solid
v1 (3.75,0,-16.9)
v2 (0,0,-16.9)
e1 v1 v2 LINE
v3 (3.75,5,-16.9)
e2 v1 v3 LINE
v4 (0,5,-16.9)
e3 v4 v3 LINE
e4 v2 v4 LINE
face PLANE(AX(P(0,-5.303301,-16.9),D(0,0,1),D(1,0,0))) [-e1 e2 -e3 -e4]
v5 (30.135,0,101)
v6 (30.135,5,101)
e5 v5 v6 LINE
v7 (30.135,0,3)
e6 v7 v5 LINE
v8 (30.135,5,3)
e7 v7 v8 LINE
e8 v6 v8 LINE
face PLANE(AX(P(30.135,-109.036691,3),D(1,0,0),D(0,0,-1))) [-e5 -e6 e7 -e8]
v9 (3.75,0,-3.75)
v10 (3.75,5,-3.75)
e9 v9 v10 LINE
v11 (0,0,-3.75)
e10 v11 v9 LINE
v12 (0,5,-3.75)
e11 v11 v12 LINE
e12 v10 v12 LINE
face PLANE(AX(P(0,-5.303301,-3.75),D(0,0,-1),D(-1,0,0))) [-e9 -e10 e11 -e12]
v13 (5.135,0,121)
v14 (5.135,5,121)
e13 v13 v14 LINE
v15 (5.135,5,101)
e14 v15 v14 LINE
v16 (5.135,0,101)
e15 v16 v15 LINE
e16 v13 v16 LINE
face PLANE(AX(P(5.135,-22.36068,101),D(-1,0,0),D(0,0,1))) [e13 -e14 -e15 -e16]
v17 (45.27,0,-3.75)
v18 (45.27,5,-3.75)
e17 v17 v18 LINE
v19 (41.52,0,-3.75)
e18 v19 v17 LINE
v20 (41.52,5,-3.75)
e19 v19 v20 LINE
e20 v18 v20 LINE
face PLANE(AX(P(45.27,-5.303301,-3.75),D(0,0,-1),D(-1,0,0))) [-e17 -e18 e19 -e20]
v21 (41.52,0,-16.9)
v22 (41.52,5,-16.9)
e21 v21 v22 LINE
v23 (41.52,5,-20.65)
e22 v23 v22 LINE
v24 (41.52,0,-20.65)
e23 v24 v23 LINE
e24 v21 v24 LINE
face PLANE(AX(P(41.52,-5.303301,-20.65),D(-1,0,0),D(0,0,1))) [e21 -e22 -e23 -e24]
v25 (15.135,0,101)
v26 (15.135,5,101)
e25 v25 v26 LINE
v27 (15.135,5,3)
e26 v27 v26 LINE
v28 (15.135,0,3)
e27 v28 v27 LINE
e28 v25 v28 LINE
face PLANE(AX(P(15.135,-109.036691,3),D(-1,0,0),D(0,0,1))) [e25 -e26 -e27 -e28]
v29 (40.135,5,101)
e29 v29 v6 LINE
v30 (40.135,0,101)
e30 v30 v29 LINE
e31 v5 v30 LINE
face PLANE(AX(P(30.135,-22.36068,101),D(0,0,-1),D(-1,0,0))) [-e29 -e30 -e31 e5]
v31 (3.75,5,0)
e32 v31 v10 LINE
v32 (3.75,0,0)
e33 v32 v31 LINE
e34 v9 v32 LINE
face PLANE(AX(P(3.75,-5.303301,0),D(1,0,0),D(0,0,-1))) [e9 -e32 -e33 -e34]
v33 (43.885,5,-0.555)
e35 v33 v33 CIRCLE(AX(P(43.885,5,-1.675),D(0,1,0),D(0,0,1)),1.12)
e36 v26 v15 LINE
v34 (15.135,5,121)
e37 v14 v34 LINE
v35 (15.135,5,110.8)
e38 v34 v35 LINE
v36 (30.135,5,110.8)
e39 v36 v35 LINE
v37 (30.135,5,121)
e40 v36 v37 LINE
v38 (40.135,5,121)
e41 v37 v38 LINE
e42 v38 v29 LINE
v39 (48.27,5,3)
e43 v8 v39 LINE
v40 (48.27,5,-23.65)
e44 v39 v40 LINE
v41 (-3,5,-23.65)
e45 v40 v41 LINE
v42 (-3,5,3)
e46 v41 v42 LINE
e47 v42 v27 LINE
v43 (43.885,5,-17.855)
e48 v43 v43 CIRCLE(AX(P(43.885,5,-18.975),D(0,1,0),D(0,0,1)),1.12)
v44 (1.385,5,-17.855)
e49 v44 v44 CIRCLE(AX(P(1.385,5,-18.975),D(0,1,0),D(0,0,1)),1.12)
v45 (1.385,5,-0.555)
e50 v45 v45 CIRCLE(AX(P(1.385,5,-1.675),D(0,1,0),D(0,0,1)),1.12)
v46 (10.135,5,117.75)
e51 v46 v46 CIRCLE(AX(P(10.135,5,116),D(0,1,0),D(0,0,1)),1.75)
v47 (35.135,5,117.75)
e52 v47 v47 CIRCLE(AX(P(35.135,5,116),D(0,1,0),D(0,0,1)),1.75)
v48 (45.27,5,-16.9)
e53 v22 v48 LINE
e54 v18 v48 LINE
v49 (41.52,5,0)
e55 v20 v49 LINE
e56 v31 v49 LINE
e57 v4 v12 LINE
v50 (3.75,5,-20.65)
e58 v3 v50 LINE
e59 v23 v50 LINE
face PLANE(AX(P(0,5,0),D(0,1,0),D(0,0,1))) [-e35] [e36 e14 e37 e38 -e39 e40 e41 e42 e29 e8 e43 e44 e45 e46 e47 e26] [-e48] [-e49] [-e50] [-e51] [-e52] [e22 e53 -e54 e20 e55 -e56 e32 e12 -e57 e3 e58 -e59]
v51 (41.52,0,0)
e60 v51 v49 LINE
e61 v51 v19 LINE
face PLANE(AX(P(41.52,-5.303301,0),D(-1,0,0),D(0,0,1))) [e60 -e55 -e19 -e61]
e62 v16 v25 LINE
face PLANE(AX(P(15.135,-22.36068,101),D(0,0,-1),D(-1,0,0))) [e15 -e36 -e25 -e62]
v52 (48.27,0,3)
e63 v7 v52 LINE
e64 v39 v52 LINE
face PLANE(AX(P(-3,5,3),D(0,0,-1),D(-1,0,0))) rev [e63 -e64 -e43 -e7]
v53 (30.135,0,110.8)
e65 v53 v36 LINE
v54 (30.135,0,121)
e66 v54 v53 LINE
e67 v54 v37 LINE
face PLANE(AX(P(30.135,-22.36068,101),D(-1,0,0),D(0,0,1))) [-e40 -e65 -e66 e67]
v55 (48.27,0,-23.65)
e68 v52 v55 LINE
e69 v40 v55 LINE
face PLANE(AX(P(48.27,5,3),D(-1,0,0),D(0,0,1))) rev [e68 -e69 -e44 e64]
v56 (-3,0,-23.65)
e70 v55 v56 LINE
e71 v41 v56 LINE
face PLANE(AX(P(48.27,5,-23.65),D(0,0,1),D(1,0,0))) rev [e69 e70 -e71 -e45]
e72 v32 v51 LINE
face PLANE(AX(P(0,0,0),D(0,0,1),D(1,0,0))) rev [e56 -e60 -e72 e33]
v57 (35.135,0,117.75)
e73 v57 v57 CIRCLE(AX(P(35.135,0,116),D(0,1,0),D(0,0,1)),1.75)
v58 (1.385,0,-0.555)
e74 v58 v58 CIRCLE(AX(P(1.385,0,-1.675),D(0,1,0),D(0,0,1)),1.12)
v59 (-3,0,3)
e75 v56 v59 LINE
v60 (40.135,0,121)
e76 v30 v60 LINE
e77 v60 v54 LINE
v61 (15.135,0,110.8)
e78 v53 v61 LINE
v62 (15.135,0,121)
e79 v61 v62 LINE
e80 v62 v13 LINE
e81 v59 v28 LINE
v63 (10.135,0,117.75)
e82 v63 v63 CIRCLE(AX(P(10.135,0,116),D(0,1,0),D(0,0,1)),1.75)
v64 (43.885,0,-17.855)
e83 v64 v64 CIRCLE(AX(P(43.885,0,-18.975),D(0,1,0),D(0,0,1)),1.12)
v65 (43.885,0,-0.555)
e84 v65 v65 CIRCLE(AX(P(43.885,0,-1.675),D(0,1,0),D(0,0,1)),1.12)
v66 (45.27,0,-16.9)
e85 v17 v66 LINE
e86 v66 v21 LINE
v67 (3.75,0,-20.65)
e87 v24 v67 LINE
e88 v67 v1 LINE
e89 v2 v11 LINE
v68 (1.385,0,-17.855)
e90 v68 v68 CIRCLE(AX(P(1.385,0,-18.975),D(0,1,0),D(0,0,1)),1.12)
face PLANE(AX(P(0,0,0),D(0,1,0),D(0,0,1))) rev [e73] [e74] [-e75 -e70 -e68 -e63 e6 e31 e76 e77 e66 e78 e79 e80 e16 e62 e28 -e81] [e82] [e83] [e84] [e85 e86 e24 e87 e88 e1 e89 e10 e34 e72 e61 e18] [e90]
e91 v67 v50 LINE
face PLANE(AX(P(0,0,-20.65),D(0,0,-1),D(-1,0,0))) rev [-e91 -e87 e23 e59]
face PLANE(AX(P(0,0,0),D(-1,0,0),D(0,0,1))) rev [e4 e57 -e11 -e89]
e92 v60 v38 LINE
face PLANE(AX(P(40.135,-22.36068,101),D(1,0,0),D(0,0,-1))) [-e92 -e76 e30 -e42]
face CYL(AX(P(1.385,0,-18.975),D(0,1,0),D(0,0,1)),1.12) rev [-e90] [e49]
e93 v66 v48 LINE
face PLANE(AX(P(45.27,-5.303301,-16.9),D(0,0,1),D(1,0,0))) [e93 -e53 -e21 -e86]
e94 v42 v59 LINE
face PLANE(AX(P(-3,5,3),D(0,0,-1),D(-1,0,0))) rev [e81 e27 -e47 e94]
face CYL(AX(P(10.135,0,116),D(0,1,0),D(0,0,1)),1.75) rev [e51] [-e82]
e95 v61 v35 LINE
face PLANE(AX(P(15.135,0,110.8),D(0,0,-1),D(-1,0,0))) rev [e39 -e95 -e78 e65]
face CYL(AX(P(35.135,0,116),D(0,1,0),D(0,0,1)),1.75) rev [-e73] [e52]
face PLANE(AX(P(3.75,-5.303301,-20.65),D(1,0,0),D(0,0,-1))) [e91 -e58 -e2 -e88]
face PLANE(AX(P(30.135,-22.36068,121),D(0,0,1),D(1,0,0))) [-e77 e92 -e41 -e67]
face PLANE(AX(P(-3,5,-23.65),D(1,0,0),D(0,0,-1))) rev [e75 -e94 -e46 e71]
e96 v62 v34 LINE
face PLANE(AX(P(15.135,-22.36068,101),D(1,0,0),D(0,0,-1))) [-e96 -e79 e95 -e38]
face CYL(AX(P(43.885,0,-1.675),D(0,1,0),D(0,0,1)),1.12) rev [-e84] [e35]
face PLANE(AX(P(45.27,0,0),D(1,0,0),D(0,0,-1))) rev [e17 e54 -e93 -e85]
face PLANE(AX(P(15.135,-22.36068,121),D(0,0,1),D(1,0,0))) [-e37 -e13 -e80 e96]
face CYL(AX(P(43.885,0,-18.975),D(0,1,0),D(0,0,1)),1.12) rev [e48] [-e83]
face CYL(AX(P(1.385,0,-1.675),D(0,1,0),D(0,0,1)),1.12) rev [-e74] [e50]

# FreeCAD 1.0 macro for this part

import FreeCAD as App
import Part
import Sketcher
Q = App.Units.Quantity


def add_polygon(sketch, points):
    """Adds a closed chain of lines whose ends are joined by coincident constraints."""
    first, n = sketch.GeometryCount, len(points)
    for a, b in zip(points, points[1:] + points[:1]):
        sketch.addGeometry(Part.LineSegment(App.Vector(*a, 0), App.Vector(*b, 0)), False)
    for i in range(n):
        sketch.addConstraint(Sketcher.Constraint("Coincident", first + i, 2, first + (i + 1) % n, 1))

doc = App.newDocument("Part")
body = doc.addObject("PartDesign::Body", "Body")

sketch1 = body.newObject("Sketcher::SketchObject", "Sketch")
sketch1.AttachmentSupport = (doc.getObject("XZ_Plane"), [""])
sketch1.MapMode = "FlatFace"
add_polygon(sketch1, [(-3, -23.65), (-3, 3), (48.27, 3), (48.27, -23.65)])
sketch1.addConstraint([
    Sketcher.Constraint("Vertical", 0),
    Sketcher.Constraint("Horizontal", 1),
    Sketcher.Constraint("Vertical", 2),
    Sketcher.Constraint("Horizontal", 3),
    Sketcher.Constraint("DistanceX", 0, 2, -1, 1, Q("3 mm")),
    Sketcher.Constraint("DistanceY", -1, 1, 0, 2, Q("3 mm")),
    Sketcher.Constraint("DistanceX", 1, 1, 1, 2, Q("51.27 mm")),
    Sketcher.Constraint("DistanceY", 0, 1, 0, 2, Q("26.65 mm")),
])
pad1 = body.newObject("PartDesign::Pad", "Pad")
pad1.Profile = sketch1
pad1.Length = 5
pad1.Reversed = True

sketch2 = body.newObject("Sketcher::SketchObject", "Sketch001")
sketch2.AttachmentSupport = (doc.getObject("XZ_Plane"), [""])
sketch2.MapMode = "FlatFace"
sketch2.AttachmentOffset = App.Placement(App.Vector(0, 0, -5), App.Rotation())
add_polygon(sketch2, [(0, -20.65), (0, 0), (45.27, 0), (45.27, -20.65)])
sketch2.addConstraint([
    Sketcher.Constraint("Vertical", 0),
    Sketcher.Constraint("Horizontal", 1),
    Sketcher.Constraint("Vertical", 2),
    Sketcher.Constraint("Horizontal", 3),
    Sketcher.Constraint("Coincident", 0, 2, -1, 1),
    Sketcher.Constraint("DistanceX", 1, 1, 1, 2, Q("45.27 mm")),
    Sketcher.Constraint("DistanceY", 0, 1, 0, 2, Q("20.65 mm")),
])
pocket1 = body.newObject("PartDesign::Pocket", "Pocket")
pocket1.Profile = sketch2
pocket1.Type = "ThroughAll"
pocket1.Reversed = True

sketch3 = body.newObject("Sketcher::SketchObject", "Sketch002")
sketch3.AttachmentSupport = (doc.getObject("XZ_Plane"), [""])
sketch3.MapMode = "FlatFace"
sketch3.AttachmentOffset = App.Placement(App.Vector(0, 0, -5), App.Rotation())
add_polygon(sketch3, [(0, -20.65), (0, -16.9), (3.75, -16.9), (3.75, -20.65)])
add_polygon(sketch3, [(0, -3.75), (0, 0), (3.75, 0), (3.75, -3.75)])
add_polygon(sketch3, [(41.52, -3.75), (41.52, 0), (45.27, 0), (45.27, -3.75)])
add_polygon(sketch3, [(41.52, -20.65), (41.52, -16.9), (45.27, -16.9), (45.27, -20.65)])
sketch3.addConstraint([
    Sketcher.Constraint("Vertical", 0),
    Sketcher.Constraint("Horizontal", 1),
    Sketcher.Constraint("Vertical", 2),
    Sketcher.Constraint("Horizontal", 3),
    Sketcher.Constraint("Vertical", 4),
    Sketcher.Constraint("Horizontal", 5),
    Sketcher.Constraint("Vertical", 6),
    Sketcher.Constraint("Horizontal", 7),
    Sketcher.Constraint("Vertical", 8),
    Sketcher.Constraint("Horizontal", 9),
    Sketcher.Constraint("Vertical", 10),
    Sketcher.Constraint("Horizontal", 11),
    Sketcher.Constraint("Vertical", 12),
    Sketcher.Constraint("Horizontal", 13),
    Sketcher.Constraint("Vertical", 14),
    Sketcher.Constraint("Horizontal", 15),
    Sketcher.Constraint("Coincident", 4, 2, -1, 1),
    Sketcher.Constraint("PointOnObject", 0, 2, -2),
    Sketcher.Constraint("PointOnObject", 8, 2, -1),
    Sketcher.Constraint("Horizontal", 7, 2, 10, 2),
    Sketcher.Constraint("Horizontal", 1, 2, 12, 2),
    Sketcher.Constraint("Horizontal", 3, 2, 14, 2),
    Sketcher.Constraint("Vertical", 2, 2, 5, 2),
    Sketcher.Constraint("Vertical", 11, 2, 12, 2),
    Sketcher.Constraint("Vertical", 10, 2, 13, 2),
    Sketcher.Constraint("Equal", 7, 9),
    Sketcher.Constraint("Equal", 15, 0),
    Sketcher.Constraint("Equal", 2, 4),
    Sketcher.Constraint("DistanceX", 1, 1, 1, 2, Q("3.75 mm")),
    Sketcher.Constraint("DistanceY", 0, 2, -1, 1, Q("16.9 mm")),
    Sketcher.Constraint("DistanceX", -1, 1, 8, 2, Q("41.52 mm")),
])
pad2 = body.newObject("PartDesign::Pad", "Pad001")
pad2.Profile = sketch3
pad2.Length = 5

sketch4 = body.newObject("Sketcher::SketchObject", "Sketch003")
sketch4.AttachmentSupport = (doc.getObject("XZ_Plane"), [""])
sketch4.MapMode = "FlatFace"
sketch4.AttachmentOffset = App.Placement(App.Vector(0, 0, -5), App.Rotation())
sketch4.addGeometry([
    Part.Circle(App.Vector(1.385, -18.975, 0), App.Vector(0, 0, 1), 1.12),
    Part.Circle(App.Vector(43.885, -18.975, 0), App.Vector(0, 0, 1), 1.12),
    Part.Circle(App.Vector(43.885, -1.675, 0), App.Vector(0, 0, 1), 1.12),
    Part.Circle(App.Vector(1.385, -1.675, 0), App.Vector(0, 0, 1), 1.12),
], False)
sketch4.addConstraint([
    Sketcher.Constraint("Equal", 0, 1),
    Sketcher.Constraint("Equal", 1, 2),
    Sketcher.Constraint("Equal", 2, 3),
    Sketcher.Constraint("Horizontal", 0, 3, 1, 3),
    Sketcher.Constraint("Horizontal", 2, 3, 3, 3),
    Sketcher.Constraint("Vertical", 1, 3, 2, 3),
    Sketcher.Constraint("Vertical", 0, 3, 3, 3),
    Sketcher.Constraint("Diameter", 0, Q("2.24 mm")),
    Sketcher.Constraint("DistanceX", 0, 3, 1, 3, Q("42.5 mm")),
    Sketcher.Constraint("DistanceY", 1, 3, 2, 3, Q("17.3 mm")),
    Sketcher.Constraint("DistanceX", -1, 1, 0, 3, Q("1.385 mm")),
    Sketcher.Constraint("DistanceY", 0, 3, -1, 1, Q("18.975 mm")),
])
pocket2 = body.newObject("PartDesign::Pocket", "Pocket001")
pocket2.Profile = sketch4
pocket2.Type = "ThroughAll"
pocket2.Reversed = True

sketch5 = body.newObject("Sketcher::SketchObject", "Sketch004")
sketch5.AttachmentSupport = (doc.getObject("XZ_Plane"), [""])
sketch5.MapMode = "FlatFace"
sketch5.AttachmentOffset = App.Placement(App.Vector(0, 0, -5), App.Rotation())
add_polygon(sketch5, [(15.135, 3), (15.135, 111), (30.135, 111), (30.135, 3)])
sketch5.addConstraint([
    Sketcher.Constraint("Vertical", 0),
    Sketcher.Constraint("Horizontal", 1),
    Sketcher.Constraint("Vertical", 2),
    Sketcher.Constraint("Horizontal", 3),
    Sketcher.Constraint("DistanceX", 1, 1, 1, 2, Q("15 mm")),
    Sketcher.Constraint("DistanceY", 0, 1, 0, 2, Q("108 mm")),
    Sketcher.Constraint("DistanceY", -1, 1, 0, 2, Q("111 mm")),
    Sketcher.Constraint("DistanceX", -1, 1, 0, 2, Q("15.135 mm")),
])
pad3 = body.newObject("PartDesign::Pad", "Pad002")
pad3.Profile = sketch5
pad3.Length = 5

sketch6 = body.newObject("Sketcher::SketchObject", "Sketch005")
sketch6.AttachmentSupport = (doc.getObject("XZ_Plane"), [""])
sketch6.MapMode = "FlatFace"
sketch6.AttachmentOffset = App.Placement(App.Vector(0, 0, -5), App.Rotation())
add_polygon(sketch6, [(30.135, 101), (30.135, 121), (40.135, 121), (40.135, 101)])
add_polygon(sketch6, [(5.135, 101), (5.135, 121), (15.135, 121), (15.135, 101)])
sketch6.addConstraint([
    Sketcher.Constraint("Vertical", 0),
    Sketcher.Constraint("Horizontal", 1),
    Sketcher.Constraint("Vertical", 2),
    Sketcher.Constraint("Horizontal", 3),
    Sketcher.Constraint("Vertical", 4),
    Sketcher.Constraint("Horizontal", 5),
    Sketcher.Constraint("Vertical", 6),
    Sketcher.Constraint("Horizontal", 7),
    Sketcher.Constraint("Horizontal", 1, 2, 4, 2),
    Sketcher.Constraint("Horizontal", 3, 2, 6, 2),
    Sketcher.Constraint("Equal", 3, 5),
    Sketcher.Constraint("DistanceX", 1, 1, 1, 2, Q("10 mm")),
    Sketcher.Constraint("DistanceY", 0, 1, 0, 2, Q("20 mm")),
    Sketcher.Constraint("DistanceY", -1, 1, 0, 2, Q("121 mm")),
    Sketcher.Constraint("DistanceX", 4, 2, 0, 2, Q("25 mm")),
    Sketcher.Constraint("DistanceX", -1, 1, 0, 2, Q("30.135 mm")),
])
pad4 = body.newObject("PartDesign::Pad", "Pad003")
pad4.Profile = sketch6
pad4.Length = 5

sketch7 = body.newObject("Sketcher::SketchObject", "Sketch006")
sketch7.AttachmentSupport = (doc.getObject("XZ_Plane"), [""])
sketch7.MapMode = "FlatFace"
sketch7.AttachmentOffset = App.Placement(App.Vector(0, 0, -5), App.Rotation())
sketch7.addGeometry([
    Part.Circle(App.Vector(10.135, 116, 0), App.Vector(0, 0, 1), 1.75),
    Part.Circle(App.Vector(35.135, 116, 0), App.Vector(0, 0, 1), 1.75),
], False)
sketch7.addConstraint([
    Sketcher.Constraint("Equal", 0, 1),
    Sketcher.Constraint("Horizontal", 0, 3, 1, 3),
    Sketcher.Constraint("Diameter", 0, Q("3.5 mm")),
    Sketcher.Constraint("DistanceY", -1, 1, 0, 3, Q("116 mm")),
    Sketcher.Constraint("DistanceX", 0, 3, 1, 3, Q("25 mm")),
    Sketcher.Constraint("DistanceX", -1, 1, 0, 3, Q("10.135 mm")),
])
pocket3 = body.newObject("PartDesign::Pocket", "Pocket002")
pocket3.Profile = sketch7
pocket3.Type = "ThroughAll"
pocket3.Reversed = True

sketch8 = body.newObject("Sketcher::SketchObject", "Sketch007")
sketch8.AttachmentSupport = (doc.getObject("XZ_Plane"), [""])
sketch8.MapMode = "FlatFace"
sketch8.AttachmentOffset = App.Placement(App.Vector(0, 0, -5), App.Rotation())
add_polygon(sketch8, [(15.135, 110.8), (15.135, 111), (30.135, 111), (30.135, 110.8)])
sketch8.addConstraint([
    Sketcher.Constraint("Vertical", 0),
    Sketcher.Constraint("Horizontal", 1),
    Sketcher.Constraint("Vertical", 2),
    Sketcher.Constraint("Horizontal", 3),
    Sketcher.Constraint("DistanceX", 1, 1, 1, 2, Q("15 mm")),
    Sketcher.Constraint("DistanceY", 0, 1, 0, 2, Q("0.2 mm")),
    Sketcher.Constraint("DistanceY", -1, 1, 0, 2, Q("111 mm")),
    Sketcher.Constraint("DistanceX", -1, 1, 0, 2, Q("15.135 mm")),
])
pocket4 = body.newObject("PartDesign::Pocket", "Pocket003")
pocket4.Profile = sketch8
pocket4.Type = "ThroughAll"
pocket4.Reversed = True

doc.recompute()
